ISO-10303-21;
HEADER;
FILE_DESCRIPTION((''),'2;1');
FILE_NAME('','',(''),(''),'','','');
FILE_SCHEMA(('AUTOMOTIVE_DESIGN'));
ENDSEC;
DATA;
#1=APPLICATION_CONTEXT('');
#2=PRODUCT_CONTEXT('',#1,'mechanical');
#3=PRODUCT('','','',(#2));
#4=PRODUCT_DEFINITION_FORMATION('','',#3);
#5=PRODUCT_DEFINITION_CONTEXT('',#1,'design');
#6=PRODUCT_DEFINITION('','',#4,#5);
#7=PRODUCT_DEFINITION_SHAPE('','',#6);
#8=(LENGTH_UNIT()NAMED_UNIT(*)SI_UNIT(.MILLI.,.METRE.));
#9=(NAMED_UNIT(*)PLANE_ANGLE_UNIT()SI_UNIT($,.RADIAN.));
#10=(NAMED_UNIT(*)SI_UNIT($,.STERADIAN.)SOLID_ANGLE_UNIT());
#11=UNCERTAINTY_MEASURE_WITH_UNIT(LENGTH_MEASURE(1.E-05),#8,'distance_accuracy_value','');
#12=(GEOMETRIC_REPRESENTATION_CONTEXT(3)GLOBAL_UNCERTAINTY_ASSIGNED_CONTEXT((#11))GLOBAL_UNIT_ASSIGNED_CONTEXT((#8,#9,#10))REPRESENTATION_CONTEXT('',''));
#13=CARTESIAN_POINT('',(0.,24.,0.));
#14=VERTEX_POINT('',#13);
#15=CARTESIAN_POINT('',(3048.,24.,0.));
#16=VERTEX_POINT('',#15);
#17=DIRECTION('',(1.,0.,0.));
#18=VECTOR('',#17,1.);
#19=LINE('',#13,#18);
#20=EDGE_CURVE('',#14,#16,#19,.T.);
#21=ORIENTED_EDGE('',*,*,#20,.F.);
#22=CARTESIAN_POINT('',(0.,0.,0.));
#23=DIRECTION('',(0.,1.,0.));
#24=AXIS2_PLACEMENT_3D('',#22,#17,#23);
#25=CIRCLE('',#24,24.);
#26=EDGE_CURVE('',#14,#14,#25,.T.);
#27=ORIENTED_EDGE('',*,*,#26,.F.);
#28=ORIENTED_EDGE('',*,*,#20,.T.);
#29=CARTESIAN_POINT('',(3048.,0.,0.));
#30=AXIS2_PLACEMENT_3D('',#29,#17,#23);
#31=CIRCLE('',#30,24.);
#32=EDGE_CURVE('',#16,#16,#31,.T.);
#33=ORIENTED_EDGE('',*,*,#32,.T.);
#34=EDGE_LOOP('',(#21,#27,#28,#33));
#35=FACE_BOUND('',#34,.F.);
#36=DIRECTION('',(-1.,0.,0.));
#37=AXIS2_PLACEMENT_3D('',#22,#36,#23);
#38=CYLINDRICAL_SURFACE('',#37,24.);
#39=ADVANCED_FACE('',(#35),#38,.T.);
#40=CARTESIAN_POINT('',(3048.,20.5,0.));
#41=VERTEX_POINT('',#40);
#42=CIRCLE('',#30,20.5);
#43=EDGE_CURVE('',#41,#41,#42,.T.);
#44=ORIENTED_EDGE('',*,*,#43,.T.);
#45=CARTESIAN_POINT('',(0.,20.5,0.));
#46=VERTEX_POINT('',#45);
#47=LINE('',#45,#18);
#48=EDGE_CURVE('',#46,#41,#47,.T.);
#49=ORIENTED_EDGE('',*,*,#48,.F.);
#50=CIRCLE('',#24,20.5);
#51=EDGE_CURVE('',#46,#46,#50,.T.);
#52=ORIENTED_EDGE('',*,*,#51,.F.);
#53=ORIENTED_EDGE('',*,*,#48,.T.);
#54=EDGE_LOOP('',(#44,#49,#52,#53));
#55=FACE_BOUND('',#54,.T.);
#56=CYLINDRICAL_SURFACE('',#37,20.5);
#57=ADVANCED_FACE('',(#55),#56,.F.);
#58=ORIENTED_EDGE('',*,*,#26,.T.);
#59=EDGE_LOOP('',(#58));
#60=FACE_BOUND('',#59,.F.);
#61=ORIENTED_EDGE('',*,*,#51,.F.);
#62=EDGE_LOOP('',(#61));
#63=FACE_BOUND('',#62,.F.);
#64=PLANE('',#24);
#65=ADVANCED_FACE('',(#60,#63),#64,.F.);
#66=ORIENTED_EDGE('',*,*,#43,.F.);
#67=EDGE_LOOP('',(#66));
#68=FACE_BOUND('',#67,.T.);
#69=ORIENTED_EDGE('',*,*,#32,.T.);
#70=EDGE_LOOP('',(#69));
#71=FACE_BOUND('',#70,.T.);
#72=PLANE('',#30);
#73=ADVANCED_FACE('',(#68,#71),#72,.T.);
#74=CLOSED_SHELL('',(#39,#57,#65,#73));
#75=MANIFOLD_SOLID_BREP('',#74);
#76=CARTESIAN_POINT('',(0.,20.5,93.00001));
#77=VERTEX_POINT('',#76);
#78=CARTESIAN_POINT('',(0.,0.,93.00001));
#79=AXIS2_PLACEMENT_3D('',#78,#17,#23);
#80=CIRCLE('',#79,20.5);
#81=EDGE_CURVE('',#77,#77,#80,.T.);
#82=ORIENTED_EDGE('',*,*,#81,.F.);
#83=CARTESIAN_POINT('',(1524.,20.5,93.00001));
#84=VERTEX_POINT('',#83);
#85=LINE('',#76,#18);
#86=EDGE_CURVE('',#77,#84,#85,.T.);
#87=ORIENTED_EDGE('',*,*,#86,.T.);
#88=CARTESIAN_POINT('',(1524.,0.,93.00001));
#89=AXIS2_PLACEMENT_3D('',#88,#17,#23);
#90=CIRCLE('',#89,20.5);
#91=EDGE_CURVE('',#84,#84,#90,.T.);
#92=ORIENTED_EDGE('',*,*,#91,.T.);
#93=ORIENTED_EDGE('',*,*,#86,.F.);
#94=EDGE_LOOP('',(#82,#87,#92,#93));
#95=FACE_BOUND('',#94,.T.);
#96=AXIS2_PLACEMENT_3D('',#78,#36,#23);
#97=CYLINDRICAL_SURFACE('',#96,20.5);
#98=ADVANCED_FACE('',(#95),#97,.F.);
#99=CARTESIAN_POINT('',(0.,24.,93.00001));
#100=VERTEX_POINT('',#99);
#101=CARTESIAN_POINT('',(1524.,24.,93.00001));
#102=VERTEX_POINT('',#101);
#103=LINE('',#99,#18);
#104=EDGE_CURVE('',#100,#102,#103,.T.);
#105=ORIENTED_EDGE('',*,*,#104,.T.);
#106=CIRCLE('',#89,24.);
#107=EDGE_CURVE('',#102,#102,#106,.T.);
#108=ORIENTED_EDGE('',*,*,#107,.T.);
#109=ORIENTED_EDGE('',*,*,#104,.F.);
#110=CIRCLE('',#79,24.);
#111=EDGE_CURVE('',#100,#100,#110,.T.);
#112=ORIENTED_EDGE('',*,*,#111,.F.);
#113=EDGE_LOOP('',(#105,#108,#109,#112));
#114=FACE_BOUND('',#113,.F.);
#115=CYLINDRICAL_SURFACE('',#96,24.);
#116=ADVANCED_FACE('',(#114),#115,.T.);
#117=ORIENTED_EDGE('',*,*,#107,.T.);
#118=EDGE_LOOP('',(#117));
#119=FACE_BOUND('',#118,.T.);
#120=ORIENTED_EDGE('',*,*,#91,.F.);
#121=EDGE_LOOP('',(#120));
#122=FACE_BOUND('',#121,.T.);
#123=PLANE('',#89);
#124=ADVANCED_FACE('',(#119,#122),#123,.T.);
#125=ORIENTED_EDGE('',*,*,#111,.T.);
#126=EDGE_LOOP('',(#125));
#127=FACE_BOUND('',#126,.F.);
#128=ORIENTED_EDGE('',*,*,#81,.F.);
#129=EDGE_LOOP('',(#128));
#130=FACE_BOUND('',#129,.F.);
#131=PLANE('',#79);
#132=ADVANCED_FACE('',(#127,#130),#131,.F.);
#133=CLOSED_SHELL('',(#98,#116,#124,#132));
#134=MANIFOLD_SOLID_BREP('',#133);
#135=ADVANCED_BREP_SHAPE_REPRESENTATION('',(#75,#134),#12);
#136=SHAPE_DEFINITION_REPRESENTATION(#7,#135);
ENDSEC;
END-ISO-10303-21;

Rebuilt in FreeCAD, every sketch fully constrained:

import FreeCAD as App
import Part
import Sketcher
from FreeCAD import Vector

doc = App.newDocument("Part")
body = doc.addObject("PartDesign::Body", "Body")

# Sketch on YZ plane
sketch1 = doc.addObject("Sketcher::SketchObject", "Sketch")
body.addObject(sketch1)
sketch1.AttachmentSupport = (doc.YZ_Plane, [""])
sketch1.MapMode = "FlatFace"
sketch1.addGeometry([
    Part.Circle(Vector(0, 0, 0), Vector(0, 0, 1), 24),
    Part.Circle(Vector(0, 0, 0), Vector(0, 0, 1), 20),
], False)
sketch1.addConstraint([
    Sketcher.Constraint("Coincident", 0, 3, -1, 1),
    Sketcher.Constraint("Coincident", 1, 3, -1, 1),
    Sketcher.Constraint("Diameter", 0, 48.0),
    Sketcher.Constraint("Diameter", 1, 41.0),
])
pad1 = doc.addObject("PartDesign::Pad", "Pad")
body.addObject(pad1)
pad1.Profile = sketch1
pad1.Length = 3048
body2 = doc.addObject("PartDesign::Body", "Body001")

# Sketch on YZ plane
sketch2 = doc.addObject("Sketcher::SketchObject", "Sketch001")
body2.addObject(sketch2)
sketch2.AttachmentSupport = (doc.getObject("YZ_Plane001"), [""])
sketch2.MapMode = "FlatFace"
sketch2.addGeometry([
    Part.Circle(Vector(0, 93, 0), Vector(0, 0, 1), 24),
    Part.Circle(Vector(0, 93, 0), Vector(0, 0, 1), 20),
], False)
sketch2.addConstraint([
    Sketcher.Constraint("Coincident", 1, 3, 0, 3),
    Sketcher.Constraint("PointOnObject", 0, 3, -2),
    Sketcher.Constraint("Diameter", 0, 48.0),
    Sketcher.Constraint("Diameter", 1, 41.0),
    Sketcher.Constraint("DistanceY", -1, 1, 0, 3, 93.00001),
])
pad2 = doc.addObject("PartDesign::Pad", "Pad001")
body2.addObject(pad2)
pad2.Profile = sketch2
pad2.Length = 1524

doc.recompute()
